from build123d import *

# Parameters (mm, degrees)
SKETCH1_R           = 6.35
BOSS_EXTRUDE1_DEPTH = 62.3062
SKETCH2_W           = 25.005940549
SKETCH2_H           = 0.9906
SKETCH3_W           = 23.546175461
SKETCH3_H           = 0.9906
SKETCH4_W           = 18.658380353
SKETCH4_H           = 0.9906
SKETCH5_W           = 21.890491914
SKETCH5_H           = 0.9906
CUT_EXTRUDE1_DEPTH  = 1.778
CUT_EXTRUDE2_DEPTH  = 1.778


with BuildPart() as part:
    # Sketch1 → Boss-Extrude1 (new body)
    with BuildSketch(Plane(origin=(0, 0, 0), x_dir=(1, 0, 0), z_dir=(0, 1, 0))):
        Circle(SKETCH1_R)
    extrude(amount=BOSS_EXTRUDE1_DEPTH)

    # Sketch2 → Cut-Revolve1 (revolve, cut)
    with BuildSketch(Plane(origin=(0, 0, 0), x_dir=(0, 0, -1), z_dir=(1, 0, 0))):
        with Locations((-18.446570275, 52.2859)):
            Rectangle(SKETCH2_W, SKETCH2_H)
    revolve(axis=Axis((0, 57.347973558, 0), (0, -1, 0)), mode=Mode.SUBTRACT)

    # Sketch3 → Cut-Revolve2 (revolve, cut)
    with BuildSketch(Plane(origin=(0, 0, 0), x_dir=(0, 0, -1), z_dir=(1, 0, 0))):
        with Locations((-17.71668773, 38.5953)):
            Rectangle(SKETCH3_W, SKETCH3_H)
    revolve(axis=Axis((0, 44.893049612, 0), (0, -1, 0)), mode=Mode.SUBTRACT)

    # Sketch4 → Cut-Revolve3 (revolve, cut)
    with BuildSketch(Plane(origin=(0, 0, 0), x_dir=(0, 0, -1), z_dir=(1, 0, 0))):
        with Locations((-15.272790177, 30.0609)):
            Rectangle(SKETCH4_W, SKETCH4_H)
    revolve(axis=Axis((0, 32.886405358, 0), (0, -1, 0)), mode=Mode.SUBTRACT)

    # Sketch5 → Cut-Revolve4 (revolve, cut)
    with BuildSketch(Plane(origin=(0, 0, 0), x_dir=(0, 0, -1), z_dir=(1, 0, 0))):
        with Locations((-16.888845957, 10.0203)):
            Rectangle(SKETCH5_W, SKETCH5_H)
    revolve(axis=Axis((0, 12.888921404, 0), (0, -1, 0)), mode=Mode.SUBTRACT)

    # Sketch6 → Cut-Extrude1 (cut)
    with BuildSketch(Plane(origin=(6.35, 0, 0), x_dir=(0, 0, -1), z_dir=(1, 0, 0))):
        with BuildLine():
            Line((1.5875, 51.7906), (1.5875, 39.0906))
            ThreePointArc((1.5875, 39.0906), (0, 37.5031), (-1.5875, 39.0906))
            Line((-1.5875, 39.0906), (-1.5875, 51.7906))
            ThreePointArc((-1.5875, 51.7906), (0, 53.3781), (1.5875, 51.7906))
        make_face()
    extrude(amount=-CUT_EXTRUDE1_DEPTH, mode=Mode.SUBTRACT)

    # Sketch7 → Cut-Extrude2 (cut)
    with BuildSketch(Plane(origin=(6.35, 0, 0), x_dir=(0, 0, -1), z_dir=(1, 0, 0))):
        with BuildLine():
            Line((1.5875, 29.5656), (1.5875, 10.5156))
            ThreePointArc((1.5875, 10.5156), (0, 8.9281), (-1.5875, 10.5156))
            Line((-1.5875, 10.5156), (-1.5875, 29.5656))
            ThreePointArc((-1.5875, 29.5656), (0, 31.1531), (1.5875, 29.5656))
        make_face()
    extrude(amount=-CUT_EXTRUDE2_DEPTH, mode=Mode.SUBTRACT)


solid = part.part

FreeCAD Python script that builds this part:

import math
import FreeCAD as App
import Part
import Sketcher
from FreeCAD import Vector
Q = App.Units.Quantity

doc = App.newDocument("Part")
body = doc.addObject("PartDesign::Body", "Body")

# Sketch on XZ plane
sketch1 = doc.addObject("Sketcher::SketchObject", "Sketch")
body.addObject(sketch1)
sketch1.AttachmentSupport = (doc.XZ_Plane, [""])
sketch1.MapMode = "FlatFace"
sketch1.addGeometry(Part.Circle(Vector(0, 0, 0), Vector(0, 0, 1), 6), False)
sketch1.addConstraint([
    Sketcher.Constraint("Coincident", 0, 3, -1, 1),
    Sketcher.Constraint("Diameter", 0, Q("0.5 in")),
])
pad1 = doc.addObject("PartDesign::Pad", "Pad")
body.addObject(pad1)
pad1.Profile = sketch1
pad1.Length = Q("2.453 in")
pad1.Reversed = True

# Sketch on YZ plane
sketch2 = doc.addObject("Sketcher::SketchObject", "Sketch001")
body.addObject(sketch2)
sketch2.AttachmentSupport = (doc.YZ_Plane, [""])
sketch2.MapMode = "FlatFace"
sketch2.addGeometry([
    Part.LineSegment(Vector(52.8, 30.9, 0), Vector(51.8, 30.9, 0)),
    Part.LineSegment(Vector(51.8, 30.9, 0), Vector(51.8, 5.9, 0)),
    Part.LineSegment(Vector(51.8, 5.9, 0), Vector(52.8, 5.9, 0)),
    Part.LineSegment(Vector(52.8, 5.9, 0), Vector(52.8, 30.9, 0)),
], False)
sketch2.addConstraint([
    Sketcher.Constraint("Coincident", 0, 2, 1, 1),
    Sketcher.Constraint("Coincident", 1, 2, 2, 1),
    Sketcher.Constraint("Coincident", 2, 2, 3, 1),
    Sketcher.Constraint("Coincident", 3, 2, 0, 1),
    Sketcher.Constraint("Horizontal", 0),
    Sketcher.Constraint("Vertical", 1),
    Sketcher.Constraint("Horizontal", 2),
    Sketcher.Constraint("Vertical", 3),
    Sketcher.Constraint("DistanceX", 0, 2, 0, 1, Q("0.039 in")),
    Sketcher.Constraint("DistanceX", -1, 1, 0, 2, Q("2.039 in")),
    Sketcher.Constraint("DistanceY", -1, 1, 1, 2, Q("0.234 in")),
    Sketcher.Constraint("DistanceY", 1, 2, 1, 1, 25.005941),
])
groove = doc.addObject("PartDesign::Groove", "Groove")
body.addObject(groove)
groove.Profile = sketch2
groove.ReferenceAxis = (sketch2, ["H_Axis"])
groove.Angle = 360

# Sketch on YZ plane
sketch3 = doc.addObject("Sketcher::SketchObject", "Sketch002")
body.addObject(sketch3)
sketch3.AttachmentSupport = (doc.YZ_Plane, [""])
sketch3.MapMode = "FlatFace"
sketch3.addGeometry([
    Part.LineSegment(Vector(39.1, 29.5, 0), Vector(38.1, 29.5, 0)),
    Part.LineSegment(Vector(38.1, 29.5, 0), Vector(38.1, 5.9, 0)),
    Part.LineSegment(Vector(38.1, 5.9, 0), Vector(39.1, 5.9, 0)),
    Part.LineSegment(Vector(39.1, 5.9, 0), Vector(39.1, 29.5, 0)),
], False)
sketch3.addConstraint([
    Sketcher.Constraint("Coincident", 0, 2, 1, 1),
    Sketcher.Constraint("Coincident", 1, 2, 2, 1),
    Sketcher.Constraint("Coincident", 2, 2, 3, 1),
    Sketcher.Constraint("Coincident", 3, 2, 0, 1),
    Sketcher.Constraint("Horizontal", 0),
    Sketcher.Constraint("Vertical", 1),
    Sketcher.Constraint("Horizontal", 2),
    Sketcher.Constraint("Vertical", 3),
    Sketcher.Constraint("DistanceX", -1, 1, 0, 2, Q("1.5 in")),
    Sketcher.Constraint("DistanceX", 0, 2, 0, 1, Q("0.039 in")),
    Sketcher.Constraint("DistanceY", -1, 1, 1, 2, Q("0.234 in")),
    Sketcher.Constraint("DistanceY", 1, 2, 1, 1, 23.546175),
])
groove2 = doc.addObject("PartDesign::Groove", "Groove001")
body.addObject(groove2)
groove2.Profile = sketch3
groove2.ReferenceAxis = (sketch3, ["H_Axis"])
groove2.Angle = 360

# Sketch on YZ plane
sketch4 = doc.addObject("Sketcher::SketchObject", "Sketch003")
body.addObject(sketch4)
sketch4.AttachmentSupport = (doc.YZ_Plane, [""])
sketch4.MapMode = "FlatFace"
sketch4.addGeometry([
    Part.LineSegment(Vector(30.6, 24.6, 0), Vector(29.6, 24.6, 0)),
    Part.LineSegment(Vector(29.6, 24.6, 0), Vector(29.6, 5.9, 0)),
    Part.LineSegment(Vector(29.6, 5.9, 0), Vector(30.6, 5.9, 0)),
    Part.LineSegment(Vector(30.6, 5.9, 0), Vector(30.6, 24.6, 0)),
], False)
sketch4.addConstraint([
    Sketcher.Constraint("Coincident", 0, 2, 1, 1),
    Sketcher.Constraint("Coincident", 1, 2, 2, 1),
    Sketcher.Constraint("Coincident", 2, 2, 3, 1),
    Sketcher.Constraint("Coincident", 3, 2, 0, 1),
    Sketcher.Constraint("Horizontal", 0),
    Sketcher.Constraint("Vertical", 1),
    Sketcher.Constraint("Horizontal", 2),
    Sketcher.Constraint("Vertical", 3),
    Sketcher.Constraint("DistanceX", 0, 2, 0, 1, Q("0.039 in")),
    Sketcher.Constraint("DistanceX", -1, 1, 0, 2, Q("1.164 in")),
    Sketcher.Constraint("DistanceY", -1, 1, 1, 2, Q("0.234 in")),
    Sketcher.Constraint("DistanceY", 1, 2, 1, 1, 18.65838),
])
groove3 = doc.addObject("PartDesign::Groove", "Groove002")
body.addObject(groove3)
groove3.Profile = sketch4
groove3.ReferenceAxis = (sketch4, ["H_Axis"])
groove3.Angle = 360

# Sketch on YZ plane
sketch5 = doc.addObject("Sketcher::SketchObject", "Sketch004")
body.addObject(sketch5)
sketch5.AttachmentSupport = (doc.YZ_Plane, [""])
sketch5.MapMode = "FlatFace"
sketch5.addGeometry([
    Part.LineSegment(Vector(10.5, 27.8, 0), Vector(9.5, 27.8, 0)),
    Part.LineSegment(Vector(9.5, 27.8, 0), Vector(9.5, 5.9, 0)),
    Part.LineSegment(Vector(9.5, 5.9, 0), Vector(10.5, 5.9, 0)),
    Part.LineSegment(Vector(10.5, 5.9, 0), Vector(10.5, 27.8, 0)),
], False)
sketch5.addConstraint([
    Sketcher.Constraint("Coincident", 0, 2, 1, 1),
    Sketcher.Constraint("Coincident", 1, 2, 2, 1),
    Sketcher.Constraint("Coincident", 2, 2, 3, 1),
    Sketcher.Constraint("Coincident", 3, 2, 0, 1),
    Sketcher.Constraint("Horizontal", 0),
    Sketcher.Constraint("Vertical", 1),
    Sketcher.Constraint("Horizontal", 2),
    Sketcher.Constraint("Vertical", 3),
    Sketcher.Constraint("DistanceX", 0, 2, 0, 1, Q("0.039 in")),
    Sketcher.Constraint("DistanceX", -1, 1, 0, 2, Q("0.375 in")),
    Sketcher.Constraint("DistanceY", -1, 1, 1, 2, Q("0.234 in")),
    Sketcher.Constraint("DistanceY", 1, 2, 1, 1, 21.890492),
])
groove4 = doc.addObject("PartDesign::Groove", "Groove003")
body.addObject(groove4)
groove4.Profile = sketch5
groove4.ReferenceAxis = (sketch5, ["H_Axis"])
groove4.Angle = 360

# Sketch on YZ plane
sketch6 = doc.addObject("Sketcher::SketchObject", "Sketch005")
body.addObject(sketch6)
sketch6.AttachmentSupport = (doc.YZ_Plane, [""])
sketch6.MapMode = "FlatFace"
sketch6.AttachmentOffset = App.Placement(Vector(0, 0, 0.25 * 25.4), App.Rotation())
sketch6.addGeometry([
    Part.LineSegment(Vector(39.1, -1.6, 0), Vector(51.8, -1.6, 0)),
    Part.ArcOfCircle(Part.Circle(Vector(51.8, 0, 0), Vector(0, 0, 1), 1.6), math.radians(-90), math.radians(90)),
    Part.LineSegment(Vector(51.8, 1.6, 0), Vector(39.1, 1.6, 0)),
    Part.ArcOfCircle(Part.Circle(Vector(39.1, 0, 0), Vector(0, 0, 1), 1.6), math.radians(90), math.radians(270)),
], False)
sketch6.addConstraint([
    Sketcher.Constraint("Tangent", 0, 2, 1, 1),
    Sketcher.Constraint("Tangent", 1, 2, 2, 1),
    Sketcher.Constraint("Tangent", 2, 2, 3, 1),
    Sketcher.Constraint("Tangent", 3, 2, 0, 1),
    Sketcher.Constraint("Horizontal", 0),
    Sketcher.Constraint("Horizontal", 2),
    Sketcher.Constraint("PointOnObject", 1, 3, -1),
    Sketcher.Constraint("DistanceX", 0, 1, 0, 2, Q("0.5 in")),
    Sketcher.Constraint("Radius", 1, Q("0.0625 in")),
    Sketcher.Constraint("DistanceX", -1, 1, 1, 3, Q("2.039 in")),
])
pocket1 = doc.addObject("PartDesign::Pocket", "Pocket")
body.addObject(pocket1)
pocket1.Profile = sketch6
pocket1.Length = Q("0.07 in")

# Sketch on YZ plane
sketch7 = doc.addObject("Sketcher::SketchObject", "Sketch006")
body.addObject(sketch7)
sketch7.AttachmentSupport = (doc.YZ_Plane, [""])
sketch7.MapMode = "FlatFace"
sketch7.AttachmentOffset = App.Placement(Vector(0, 0, 0.25 * 25.4), App.Rotation())
sketch7.addGeometry([
    Part.LineSegment(Vector(10.5, -1.6, 0), Vector(29.6, -1.6, 0)),
    Part.ArcOfCircle(Part.Circle(Vector(29.6, 0, 0), Vector(0, 0, 1), 1.6), math.radians(-90), math.radians(90)),
    Part.LineSegment(Vector(29.6, 1.6, 0), Vector(10.5, 1.6, 0)),
    Part.ArcOfCircle(Part.Circle(Vector(10.5, 0, 0), Vector(0, 0, 1), 1.6), math.radians(90), math.radians(270)),
], False)
sketch7.addConstraint([
    Sketcher.Constraint("Tangent", 0, 2, 1, 1),
    Sketcher.Constraint("Tangent", 1, 2, 2, 1),
    Sketcher.Constraint("Tangent", 2, 2, 3, 1),
    Sketcher.Constraint("Tangent", 3, 2, 0, 1),
    Sketcher.Constraint("Horizontal", 0),
    Sketcher.Constraint("Horizontal", 2),
    Sketcher.Constraint("PointOnObject", 1, 3, -1),
    Sketcher.Constraint("Radius", 1, Q("0.0625 in")),
    Sketcher.Constraint("DistanceX", 0, 1, 0, 2, Q("0.75 in")),
    Sketcher.Constraint("DistanceX", -1, 1, 1, 3, Q("1.164 in")),
])
pocket2 = doc.addObject("PartDesign::Pocket", "Pocket001")
body.addObject(pocket2)
pocket2.Profile = sketch7
pocket2.Length = Q("0.07 in")

doc.recompute()
